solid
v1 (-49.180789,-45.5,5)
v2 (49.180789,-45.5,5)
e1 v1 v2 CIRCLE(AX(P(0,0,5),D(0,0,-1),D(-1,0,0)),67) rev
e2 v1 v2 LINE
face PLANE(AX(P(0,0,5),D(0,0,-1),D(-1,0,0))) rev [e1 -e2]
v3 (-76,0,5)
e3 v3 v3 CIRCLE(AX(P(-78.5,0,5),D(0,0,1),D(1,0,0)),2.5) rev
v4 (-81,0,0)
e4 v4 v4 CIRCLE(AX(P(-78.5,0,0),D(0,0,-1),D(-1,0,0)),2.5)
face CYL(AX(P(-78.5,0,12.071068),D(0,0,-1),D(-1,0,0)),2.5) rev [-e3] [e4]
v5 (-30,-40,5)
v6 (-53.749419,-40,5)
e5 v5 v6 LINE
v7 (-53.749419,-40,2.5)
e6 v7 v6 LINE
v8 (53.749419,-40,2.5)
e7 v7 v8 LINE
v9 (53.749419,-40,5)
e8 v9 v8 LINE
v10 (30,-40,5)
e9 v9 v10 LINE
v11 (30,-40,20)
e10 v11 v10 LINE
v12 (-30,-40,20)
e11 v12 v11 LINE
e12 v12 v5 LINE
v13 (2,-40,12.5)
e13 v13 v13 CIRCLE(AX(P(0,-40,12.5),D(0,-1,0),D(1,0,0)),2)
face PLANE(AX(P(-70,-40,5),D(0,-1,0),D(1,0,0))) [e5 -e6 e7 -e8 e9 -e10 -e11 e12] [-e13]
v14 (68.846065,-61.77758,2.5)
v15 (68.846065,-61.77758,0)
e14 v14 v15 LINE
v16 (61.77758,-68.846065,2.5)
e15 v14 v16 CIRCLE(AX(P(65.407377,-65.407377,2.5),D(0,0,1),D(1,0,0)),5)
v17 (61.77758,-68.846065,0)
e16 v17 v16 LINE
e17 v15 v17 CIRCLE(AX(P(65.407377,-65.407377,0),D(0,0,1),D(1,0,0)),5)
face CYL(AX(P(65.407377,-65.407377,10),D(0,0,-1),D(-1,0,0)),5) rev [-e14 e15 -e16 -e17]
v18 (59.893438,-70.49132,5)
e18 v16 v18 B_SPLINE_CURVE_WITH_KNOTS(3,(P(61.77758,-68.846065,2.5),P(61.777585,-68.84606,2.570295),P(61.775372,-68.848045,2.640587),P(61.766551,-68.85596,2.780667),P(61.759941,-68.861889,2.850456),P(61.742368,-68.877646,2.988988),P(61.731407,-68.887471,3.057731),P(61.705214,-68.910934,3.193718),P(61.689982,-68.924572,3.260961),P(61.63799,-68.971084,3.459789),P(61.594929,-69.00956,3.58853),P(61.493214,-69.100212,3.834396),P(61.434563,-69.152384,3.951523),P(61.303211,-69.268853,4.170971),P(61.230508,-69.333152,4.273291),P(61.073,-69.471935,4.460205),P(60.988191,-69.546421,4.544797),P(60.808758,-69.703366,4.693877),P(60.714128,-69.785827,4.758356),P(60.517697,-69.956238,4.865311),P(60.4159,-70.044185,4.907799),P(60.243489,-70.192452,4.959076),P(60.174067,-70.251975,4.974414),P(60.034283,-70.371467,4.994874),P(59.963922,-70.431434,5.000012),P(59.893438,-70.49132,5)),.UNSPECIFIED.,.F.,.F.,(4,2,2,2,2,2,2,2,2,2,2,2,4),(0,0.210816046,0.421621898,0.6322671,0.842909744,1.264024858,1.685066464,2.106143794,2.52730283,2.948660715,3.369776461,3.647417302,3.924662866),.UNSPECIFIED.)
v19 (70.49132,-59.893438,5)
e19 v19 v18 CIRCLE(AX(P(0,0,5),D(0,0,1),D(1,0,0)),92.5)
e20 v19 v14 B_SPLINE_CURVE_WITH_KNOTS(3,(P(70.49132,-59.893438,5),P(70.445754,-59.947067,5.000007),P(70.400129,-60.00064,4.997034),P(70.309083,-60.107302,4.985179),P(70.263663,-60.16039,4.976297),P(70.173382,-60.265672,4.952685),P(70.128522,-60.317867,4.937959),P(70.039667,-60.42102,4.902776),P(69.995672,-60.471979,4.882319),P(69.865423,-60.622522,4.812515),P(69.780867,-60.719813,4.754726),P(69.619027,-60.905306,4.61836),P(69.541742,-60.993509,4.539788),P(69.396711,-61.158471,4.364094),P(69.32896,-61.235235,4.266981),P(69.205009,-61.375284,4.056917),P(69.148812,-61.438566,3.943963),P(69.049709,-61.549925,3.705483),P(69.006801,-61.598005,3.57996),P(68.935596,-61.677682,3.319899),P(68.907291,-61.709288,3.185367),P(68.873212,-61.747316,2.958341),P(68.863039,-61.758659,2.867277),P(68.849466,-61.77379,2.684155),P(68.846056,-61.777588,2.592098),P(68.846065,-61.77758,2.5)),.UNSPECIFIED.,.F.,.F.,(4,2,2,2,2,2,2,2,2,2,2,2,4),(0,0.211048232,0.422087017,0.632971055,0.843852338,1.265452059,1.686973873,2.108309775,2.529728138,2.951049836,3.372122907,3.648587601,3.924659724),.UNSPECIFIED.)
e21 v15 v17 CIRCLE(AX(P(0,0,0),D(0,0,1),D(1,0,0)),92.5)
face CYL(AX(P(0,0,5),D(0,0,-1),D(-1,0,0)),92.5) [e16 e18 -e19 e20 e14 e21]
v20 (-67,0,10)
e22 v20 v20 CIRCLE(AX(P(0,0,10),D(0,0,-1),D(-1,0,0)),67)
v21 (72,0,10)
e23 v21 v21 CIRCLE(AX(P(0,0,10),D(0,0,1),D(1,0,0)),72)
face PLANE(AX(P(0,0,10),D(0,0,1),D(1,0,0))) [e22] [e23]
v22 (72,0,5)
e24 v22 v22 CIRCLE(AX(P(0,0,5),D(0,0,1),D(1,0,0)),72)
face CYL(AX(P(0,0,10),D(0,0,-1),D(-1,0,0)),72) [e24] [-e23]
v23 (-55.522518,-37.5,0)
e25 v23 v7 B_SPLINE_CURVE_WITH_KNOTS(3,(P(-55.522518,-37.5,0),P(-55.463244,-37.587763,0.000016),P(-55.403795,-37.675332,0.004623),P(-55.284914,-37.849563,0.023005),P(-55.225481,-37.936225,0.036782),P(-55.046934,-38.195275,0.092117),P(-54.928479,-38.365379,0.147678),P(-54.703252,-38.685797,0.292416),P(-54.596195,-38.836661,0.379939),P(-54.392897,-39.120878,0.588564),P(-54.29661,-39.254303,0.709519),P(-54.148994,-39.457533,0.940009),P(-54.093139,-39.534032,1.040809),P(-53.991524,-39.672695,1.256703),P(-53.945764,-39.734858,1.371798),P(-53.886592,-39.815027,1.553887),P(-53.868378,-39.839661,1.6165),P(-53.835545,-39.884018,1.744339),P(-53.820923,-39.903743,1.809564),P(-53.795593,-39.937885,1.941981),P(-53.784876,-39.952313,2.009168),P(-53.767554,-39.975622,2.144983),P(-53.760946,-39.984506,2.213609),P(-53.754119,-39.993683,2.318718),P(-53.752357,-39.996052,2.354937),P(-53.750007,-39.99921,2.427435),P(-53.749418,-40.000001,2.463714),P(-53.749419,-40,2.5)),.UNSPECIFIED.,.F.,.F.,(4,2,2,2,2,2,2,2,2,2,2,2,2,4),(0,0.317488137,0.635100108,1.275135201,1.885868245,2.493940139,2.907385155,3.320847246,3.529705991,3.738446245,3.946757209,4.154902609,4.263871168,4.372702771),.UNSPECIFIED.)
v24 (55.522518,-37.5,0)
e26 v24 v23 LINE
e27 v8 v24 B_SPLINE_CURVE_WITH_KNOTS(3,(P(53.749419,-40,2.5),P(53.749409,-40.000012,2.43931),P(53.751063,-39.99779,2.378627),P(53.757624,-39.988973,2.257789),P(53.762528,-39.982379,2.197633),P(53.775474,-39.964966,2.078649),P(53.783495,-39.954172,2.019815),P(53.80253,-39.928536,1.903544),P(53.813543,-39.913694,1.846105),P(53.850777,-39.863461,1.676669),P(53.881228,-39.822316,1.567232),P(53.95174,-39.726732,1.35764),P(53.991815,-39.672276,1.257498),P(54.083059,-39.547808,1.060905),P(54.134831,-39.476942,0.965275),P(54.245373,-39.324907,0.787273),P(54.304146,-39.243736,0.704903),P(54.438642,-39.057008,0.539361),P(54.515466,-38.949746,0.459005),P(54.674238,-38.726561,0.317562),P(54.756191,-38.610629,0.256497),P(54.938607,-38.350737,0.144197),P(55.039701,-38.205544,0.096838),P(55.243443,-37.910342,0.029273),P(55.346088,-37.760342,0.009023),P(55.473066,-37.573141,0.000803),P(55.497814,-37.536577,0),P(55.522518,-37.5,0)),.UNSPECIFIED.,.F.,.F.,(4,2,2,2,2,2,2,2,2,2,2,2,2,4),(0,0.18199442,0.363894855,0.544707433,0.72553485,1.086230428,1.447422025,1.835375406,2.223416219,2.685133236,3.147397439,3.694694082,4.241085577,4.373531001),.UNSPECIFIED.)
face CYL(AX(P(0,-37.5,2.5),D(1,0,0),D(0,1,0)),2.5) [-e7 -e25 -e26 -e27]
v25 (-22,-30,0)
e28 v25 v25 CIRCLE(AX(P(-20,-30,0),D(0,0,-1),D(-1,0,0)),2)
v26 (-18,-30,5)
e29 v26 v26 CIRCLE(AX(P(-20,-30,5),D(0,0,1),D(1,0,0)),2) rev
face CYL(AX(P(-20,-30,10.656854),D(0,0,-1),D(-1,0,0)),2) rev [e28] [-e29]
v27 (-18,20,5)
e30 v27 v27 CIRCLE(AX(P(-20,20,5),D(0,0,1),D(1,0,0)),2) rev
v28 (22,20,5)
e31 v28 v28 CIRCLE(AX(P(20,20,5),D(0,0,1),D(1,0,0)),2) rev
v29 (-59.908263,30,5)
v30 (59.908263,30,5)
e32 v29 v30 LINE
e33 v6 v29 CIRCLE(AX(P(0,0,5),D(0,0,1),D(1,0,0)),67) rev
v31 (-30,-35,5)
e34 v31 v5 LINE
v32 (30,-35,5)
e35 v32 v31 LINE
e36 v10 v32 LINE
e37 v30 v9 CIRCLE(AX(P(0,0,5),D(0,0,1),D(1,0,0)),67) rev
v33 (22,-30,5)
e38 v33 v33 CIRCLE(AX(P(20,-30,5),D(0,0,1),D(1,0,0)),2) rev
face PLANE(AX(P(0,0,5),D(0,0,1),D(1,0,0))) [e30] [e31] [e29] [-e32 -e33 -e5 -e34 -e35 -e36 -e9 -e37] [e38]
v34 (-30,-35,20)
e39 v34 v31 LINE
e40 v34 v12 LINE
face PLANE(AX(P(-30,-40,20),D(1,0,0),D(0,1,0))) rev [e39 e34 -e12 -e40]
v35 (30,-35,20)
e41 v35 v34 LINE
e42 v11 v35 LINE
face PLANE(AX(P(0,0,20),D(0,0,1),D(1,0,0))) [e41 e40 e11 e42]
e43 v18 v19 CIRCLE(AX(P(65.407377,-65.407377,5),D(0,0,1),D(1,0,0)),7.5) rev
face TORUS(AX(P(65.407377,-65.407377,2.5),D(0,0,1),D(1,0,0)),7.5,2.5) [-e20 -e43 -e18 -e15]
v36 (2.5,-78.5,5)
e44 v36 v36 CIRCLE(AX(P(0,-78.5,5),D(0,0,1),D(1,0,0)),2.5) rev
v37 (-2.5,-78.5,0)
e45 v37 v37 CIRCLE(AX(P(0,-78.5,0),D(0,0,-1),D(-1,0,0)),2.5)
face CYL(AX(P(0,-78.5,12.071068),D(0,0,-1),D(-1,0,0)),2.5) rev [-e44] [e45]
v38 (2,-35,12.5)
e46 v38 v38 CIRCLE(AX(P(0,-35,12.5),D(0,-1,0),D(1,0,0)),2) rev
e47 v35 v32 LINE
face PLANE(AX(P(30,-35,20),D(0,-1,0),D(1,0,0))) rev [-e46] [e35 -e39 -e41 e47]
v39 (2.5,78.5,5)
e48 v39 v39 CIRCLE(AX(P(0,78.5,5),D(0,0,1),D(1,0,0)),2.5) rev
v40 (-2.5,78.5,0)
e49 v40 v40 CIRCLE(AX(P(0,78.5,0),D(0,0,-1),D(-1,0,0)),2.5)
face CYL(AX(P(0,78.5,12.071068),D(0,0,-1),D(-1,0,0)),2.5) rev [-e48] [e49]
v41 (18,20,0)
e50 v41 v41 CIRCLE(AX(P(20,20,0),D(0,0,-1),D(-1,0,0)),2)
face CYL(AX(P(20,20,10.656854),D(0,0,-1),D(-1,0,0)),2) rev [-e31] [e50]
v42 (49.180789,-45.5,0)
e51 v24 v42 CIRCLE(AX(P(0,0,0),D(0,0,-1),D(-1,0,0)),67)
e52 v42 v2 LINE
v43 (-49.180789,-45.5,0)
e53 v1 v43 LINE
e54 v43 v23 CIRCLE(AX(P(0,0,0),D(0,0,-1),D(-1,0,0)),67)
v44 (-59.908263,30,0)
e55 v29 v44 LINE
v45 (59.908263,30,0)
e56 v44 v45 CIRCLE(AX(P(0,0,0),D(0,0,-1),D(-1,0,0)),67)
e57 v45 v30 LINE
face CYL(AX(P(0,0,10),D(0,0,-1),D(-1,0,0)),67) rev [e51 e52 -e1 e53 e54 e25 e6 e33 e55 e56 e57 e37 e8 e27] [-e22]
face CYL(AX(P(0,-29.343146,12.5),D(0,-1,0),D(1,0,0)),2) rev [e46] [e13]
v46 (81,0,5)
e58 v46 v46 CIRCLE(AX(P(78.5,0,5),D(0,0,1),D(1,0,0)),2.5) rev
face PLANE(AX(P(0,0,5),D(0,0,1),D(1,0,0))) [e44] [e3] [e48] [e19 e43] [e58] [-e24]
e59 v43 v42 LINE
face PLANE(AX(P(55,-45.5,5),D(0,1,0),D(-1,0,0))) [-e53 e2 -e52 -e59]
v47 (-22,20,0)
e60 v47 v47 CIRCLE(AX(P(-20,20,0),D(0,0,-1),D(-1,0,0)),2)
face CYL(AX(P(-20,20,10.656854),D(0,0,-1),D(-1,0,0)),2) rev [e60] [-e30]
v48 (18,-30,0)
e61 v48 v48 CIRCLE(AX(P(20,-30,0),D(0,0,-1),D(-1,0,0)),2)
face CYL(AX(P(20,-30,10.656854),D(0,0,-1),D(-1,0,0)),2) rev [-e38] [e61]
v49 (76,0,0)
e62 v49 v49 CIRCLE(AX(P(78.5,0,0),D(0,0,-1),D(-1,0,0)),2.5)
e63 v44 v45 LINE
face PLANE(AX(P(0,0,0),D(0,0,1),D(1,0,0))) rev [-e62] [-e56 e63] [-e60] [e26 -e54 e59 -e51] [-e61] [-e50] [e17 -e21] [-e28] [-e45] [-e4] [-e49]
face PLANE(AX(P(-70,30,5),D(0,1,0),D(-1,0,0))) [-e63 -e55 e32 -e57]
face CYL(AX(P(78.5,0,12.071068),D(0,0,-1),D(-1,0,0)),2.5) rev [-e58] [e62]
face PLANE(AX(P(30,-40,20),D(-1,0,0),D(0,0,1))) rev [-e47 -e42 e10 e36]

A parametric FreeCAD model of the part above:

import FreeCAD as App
import Part
import Sketcher
Q = App.Units.Quantity


def edges_at(feature, points):
    """Names of the edges that pass closest to the given points."""
    edges = feature.Shape.Edges
    near = lambda p: min(range(len(edges)), key=lambda i: edges[i].distToShape(Part.Vertex(*p))[0])
    return sorted({f"Edge{near(p) + 1}" for p in points})

doc = App.newDocument("Part")
body = doc.addObject("PartDesign::Body", "Body")

# Sketch on XY plane
sketch1 = body.newObject("Sketcher::SketchObject", "Sketch")
sketch1.AttachmentSupport = (doc.getObject("XY_Plane"), [""])
sketch1.MapMode = "FlatFace"
sketch1.addGeometry(Part.Circle(App.Vector(0, 0, 0), App.Vector(0, 0, 1), 92), False)
sketch1.addConstraint(Sketcher.Constraint("Coincident", 0, 3, -1, 1))
sketch1.addConstraint(Sketcher.Constraint("Diameter", 0, Q("185 mm")))
pad1 = body.newObject("PartDesign::Pad", "Pad")
pad1.Profile = sketch1
pad1.Length = 5

# Sketch on XY plane
sketch2 = body.newObject("Sketcher::SketchObject", "Sketch001")
sketch2.AttachmentSupport = (doc.getObject("XY_Plane"), [""])
sketch2.MapMode = "FlatFace"
sketch2.AttachmentOffset = App.Placement(App.Vector(0, 0, 5), App.Rotation())
sketch2.addGeometry(Part.Circle(App.Vector(0, 0, 0), App.Vector(0, 0, 1), 72), False)
sketch2.addConstraint(Sketcher.Constraint("Coincident", 0, 3, -1, 1))
sketch2.addConstraint(Sketcher.Constraint("Diameter", 0, Q("144 mm")))
pad2 = body.newObject("PartDesign::Pad", "Pad001")
pad2.Profile = sketch2
pad2.Length = 5

# Sketch on XY plane
sketch3 = body.newObject("Sketcher::SketchObject", "Sketch002")
sketch3.AttachmentSupport = (doc.getObject("XY_Plane"), [""])
sketch3.MapMode = "FlatFace"
sketch3.addGeometry(Part.Circle(App.Vector(0, 0, 0), App.Vector(0, 0, 1), 67), False)
sketch3.addConstraint(Sketcher.Constraint("Coincident", 0, 3, -1, 1))
sketch3.addConstraint(Sketcher.Constraint("Diameter", 0, Q("134 mm")))
pocket1 = body.newObject("PartDesign::Pocket", "Pocket")
pocket1.Profile = sketch3
pocket1.Type = "ThroughAll"
pocket1.Reversed = True

# Sketch on XY plane
sketch4 = body.newObject("Sketcher::SketchObject", "Sketch003")
sketch4.AttachmentSupport = (doc.getObject("XY_Plane"), [""])
sketch4.MapMode = "FlatFace"
sketch4.addGeometry(Part.LineSegment(App.Vector(70, 30, 0), App.Vector(70, -40, 0)), False)
sketch4.addGeometry(Part.LineSegment(App.Vector(70, -40, 0), App.Vector(-70, -40, 0)), False)
sketch4.addGeometry(Part.LineSegment(App.Vector(-70, -40, 0), App.Vector(-70, 30, 0)), False)
sketch4.addGeometry(Part.LineSegment(App.Vector(-70, 30, 0), App.Vector(70, 30, 0)), False)
sketch4.addConstraint(Sketcher.Constraint("Coincident", 0, 2, 1, 1))
sketch4.addConstraint(Sketcher.Constraint("Coincident", 1, 2, 2, 1))
sketch4.addConstraint(Sketcher.Constraint("Coincident", 2, 2, 3, 1))
sketch4.addConstraint(Sketcher.Constraint("Coincident", 3, 2, 0, 1))
sketch4.addConstraint(Sketcher.Constraint("Vertical", 0))
sketch4.addConstraint(Sketcher.Constraint("Horizontal", 1))
sketch4.addConstraint(Sketcher.Constraint("Vertical", 2))
sketch4.addConstraint(Sketcher.Constraint("Horizontal", 3))
sketch4.addConstraint(Sketcher.Constraint("DistanceX", 1, 2, 1, 1, Q("140 mm")))
sketch4.addConstraint(Sketcher.Constraint("DistanceY", 0, 2, 0, 1, Q("70 mm")))
sketch4.addConstraint(Sketcher.Constraint("DistanceX", -1, 1, 0, 2, Q("70 mm")))
sketch4.addConstraint(Sketcher.Constraint("DistanceY", 0, 2, -1, 1, Q("40 mm")))
pad3 = body.newObject("PartDesign::Pad", "Pad002")
pad3.Profile = sketch4
pad3.Length = 5
doc.recompute()

fillet = body.newObject("PartDesign::Fillet", "Fillet")
fillet.Base = (pad3, edges_at(pad3, [(0, -40, 0)]))
fillet.Radius = 2.5

# Sketch on XY plane
sketch5 = body.newObject("Sketcher::SketchObject", "Sketch004")
sketch5.AttachmentSupport = (doc.getObject("XY_Plane"), [""])
sketch5.MapMode = "FlatFace"
sketch5.addGeometry(Part.LineSegment(App.Vector(55, -46, 0), App.Vector(55, -70, 0)), False)
sketch5.addGeometry(Part.LineSegment(App.Vector(55, -70, 0), App.Vector(-55, -70, 0)), False)
sketch5.addGeometry(Part.LineSegment(App.Vector(-55, -70, 0), App.Vector(-55, -46, 0)), False)
sketch5.addGeometry(Part.LineSegment(App.Vector(-55, -46, 0), App.Vector(55, -46, 0)), False)
sketch5.addConstraint(Sketcher.Constraint("Coincident", 0, 2, 1, 1))
sketch5.addConstraint(Sketcher.Constraint("Coincident", 1, 2, 2, 1))
sketch5.addConstraint(Sketcher.Constraint("Coincident", 2, 2, 3, 1))
sketch5.addConstraint(Sketcher.Constraint("Coincident", 3, 2, 0, 1))
sketch5.addConstraint(Sketcher.Constraint("Vertical", 0))
sketch5.addConstraint(Sketcher.Constraint("Horizontal", 1))
sketch5.addConstraint(Sketcher.Constraint("Vertical", 2))
sketch5.addConstraint(Sketcher.Constraint("Horizontal", 3))
sketch5.addConstraint(Sketcher.Constraint("DistanceX", 1, 2, 1, 1, Q("110 mm")))
sketch5.addConstraint(Sketcher.Constraint("DistanceY", 0, 2, 0, 1, Q("25 mm")))
sketch5.addConstraint(Sketcher.Constraint("DistanceX", -1, 1, 0, 2, Q("55 mm")))
sketch5.addConstraint(Sketcher.Constraint("DistanceY", 0, 2, -1, 1, Q("70.5 mm")))
pad4 = body.newObject("PartDesign::Pad", "Pad003")
pad4.Profile = sketch5
pad4.Length = 5

# Sketch on XY plane
sketch6 = body.newObject("Sketcher::SketchObject", "Sketch005")
sketch6.AttachmentSupport = (doc.getObject("XY_Plane"), [""])
sketch6.MapMode = "FlatFace"
sketch6.addGeometry(Part.Circle(App.Vector(20, -30, 0), App.Vector(0, 0, 1), 2), False)
sketch6.addGeometry(Part.Circle(App.Vector(20, 20, 0), App.Vector(0, 0, 1), 2), False)
sketch6.addGeometry(Part.Circle(App.Vector(-20, 20, 0), App.Vector(0, 0, 1), 2), False)
sketch6.addGeometry(Part.Circle(App.Vector(-20, -30, 0), App.Vector(0, 0, 1), 2), False)
sketch6.addConstraint(Sketcher.Constraint("Equal", 0, 1))
sketch6.addConstraint(Sketcher.Constraint("Equal", 1, 2))
sketch6.addConstraint(Sketcher.Constraint("Equal", 2, 3))
sketch6.addConstraint(Sketcher.Constraint("Symmetric", 1, 3, 2, 3, -2))
sketch6.addConstraint(Sketcher.Constraint("Symmetric", 0, 3, 3, 3, -2))
sketch6.addConstraint(Sketcher.Constraint("Vertical", 0, 3, 1, 3))
sketch6.addConstraint(Sketcher.Constraint("Diameter", 0, Q("4 mm")))
sketch6.addConstraint(Sketcher.Constraint("DistanceX", -1, 1, 0, 3, Q("20 mm")))
sketch6.addConstraint(Sketcher.Constraint("DistanceY", 0, 3, -1, 1, Q("30 mm")))
sketch6.addConstraint(Sketcher.Constraint("DistanceY", -1, 1, 1, 3, Q("20 mm")))
pocket2 = body.newObject("PartDesign::Pocket", "Pocket001")
pocket2.Profile = sketch6
pocket2.Length = 5
pocket2.Reversed = True

# Sketch on XY plane
sketch7 = body.newObject("Sketcher::SketchObject", "Sketch006")
sketch7.AttachmentSupport = (doc.getObject("XY_Plane"), [""])
sketch7.MapMode = "FlatFace"
sketch7.addGeometry(Part.Circle(App.Vector(0, -78.5, 0), App.Vector(0, 0, 1), 2.5), False)
sketch7.addGeometry(Part.Circle(App.Vector(78.5, 0, 0), App.Vector(0, 0, 1), 2.5), False)
sketch7.addGeometry(Part.Circle(App.Vector(0, 78.5, 0), App.Vector(0, 0, 1), 2.5), False)
sketch7.addGeometry(Part.Circle(App.Vector(-78.5, 0, 0), App.Vector(0, 0, 1), 2.5), False)
sketch7.addConstraint(Sketcher.Constraint("Equal", 0, 1))
sketch7.addConstraint(Sketcher.Constraint("Equal", 1, 2))
sketch7.addConstraint(Sketcher.Constraint("Equal", 2, 3))
sketch7.addConstraint(Sketcher.Constraint("Symmetric", 0, 3, 2, 3, -1, 1))
sketch7.addConstraint(Sketcher.Constraint("Symmetric", 1, 3, 3, 3, -1, 1))
sketch7.addConstraint(Sketcher.Constraint("PointOnObject", 0, 3, -2))
sketch7.addConstraint(Sketcher.Constraint("PointOnObject", 1, 3, -1))
sketch7.addConstraint(Sketcher.Constraint("Diameter", 0, Q("5 mm")))
sketch7.addConstraint(Sketcher.Constraint("DistanceY", 0, 3, 2, 3, Q("157 mm")))
sketch7.addConstraint(Sketcher.Constraint("DistanceX", 3, 3, 1, 3, Q("157 mm")))
pocket3 = body.newObject("PartDesign::Pocket", "Pocket002")
pocket3.Profile = sketch7
pocket3.Length = 5
pocket3.Reversed = True

# Sketch on XY plane
sketch8 = body.newObject("Sketcher::SketchObject", "Sketch007")
sketch8.AttachmentSupport = (doc.getObject("XY_Plane"), [""])
sketch8.MapMode = "FlatFace"
sketch8.AttachmentOffset = App.Placement(App.Vector(0, 0, 5), App.Rotation())
sketch8.addGeometry(Part.LineSegment(App.Vector(-30, -35, 0), App.Vector(-30, -40, 0)), False)
sketch8.addGeometry(Part.LineSegment(App.Vector(-30, -40, 0), App.Vector(30, -40, 0)), False)
sketch8.addGeometry(Part.LineSegment(App.Vector(30, -40, 0), App.Vector(30, -35, 0)), False)
sketch8.addGeometry(Part.LineSegment(App.Vector(30, -35, 0), App.Vector(-30, -35, 0)), False)
sketch8.addConstraint(Sketcher.Constraint("Coincident", 0, 2, 1, 1))
sketch8.addConstraint(Sketcher.Constraint("Coincident", 1, 2, 2, 1))
sketch8.addConstraint(Sketcher.Constraint("Coincident", 2, 2, 3, 1))
sketch8.addConstraint(Sketcher.Constraint("Coincident", 3, 2, 0, 1))
sketch8.addConstraint(Sketcher.Constraint("Vertical", 0))
sketch8.addConstraint(Sketcher.Constraint("Horizontal", 1))
sketch8.addConstraint(Sketcher.Constraint("Vertical", 2))
sketch8.addConstraint(Sketcher.Constraint("Horizontal", 3))
sketch8.addConstraint(Sketcher.Constraint("DistanceX", 1, 1, 1, 2, Q("60 mm")))
sketch8.addConstraint(Sketcher.Constraint("DistanceY", 0, 2, 0, 1, Q("5 mm")))
sketch8.addConstraint(Sketcher.Constraint("DistanceX", 0, 2, -1, 1, Q("30 mm")))
sketch8.addConstraint(Sketcher.Constraint("DistanceY", 0, 2, -1, 1, Q("40 mm")))
pad5 = body.newObject("PartDesign::Pad", "Pad004")
pad5.Profile = sketch8
pad5.Length = 15

# Sketch on XZ plane
sketch9 = body.newObject("Sketcher::SketchObject", "Sketch008")
sketch9.AttachmentSupport = (doc.getObject("XZ_Plane"), [""])
sketch9.MapMode = "FlatFace"
sketch9.AttachmentOffset = App.Placement(App.Vector(0, 0, 40), App.Rotation())
sketch9.addGeometry(Part.Circle(App.Vector(0, 12.5, 0), App.Vector(0, 0, 1), 2), False)
sketch9.addConstraint(Sketcher.Constraint("PointOnObject", 0, 3, -2))
sketch9.addConstraint(Sketcher.Constraint("Diameter", 0, Q("4 mm")))
sketch9.addConstraint(Sketcher.Constraint("DistanceY", -1, 1, 0, 3, Q("12.5 mm")))
pocket4 = body.newObject("PartDesign::Pocket", "Pocket003")
pocket4.Profile = sketch9
pocket4.Length = 5

# Sketch on XY plane
sketch10 = body.newObject("Sketcher::SketchObject", "Sketch009")
sketch10.AttachmentSupport = (doc.getObject("XY_Plane"), [""])
sketch10.MapMode = "FlatFace"
sketch10.addGeometry(Part.Circle(App.Vector(65, -65, 0), App.Vector(0, 0, 1), 5), False)
sketch10.addConstraint(Sketcher.Constraint("Diameter", 0, Q("10 mm")))
sketch10.addConstraint(Sketcher.Constraint("DistanceX", -1, 1, 0, 3, Q("65.407377 mm")))
sketch10.addConstraint(Sketcher.Constraint("DistanceY", 0, 3, -1, 1, Q("65.407377 mm")))
pocket5 = body.newObject("PartDesign::Pocket", "Pocket004")
pocket5.Profile = sketch10
pocket5.Length = 10
pocket5.Reversed = True
doc.recompute()

fillet2 = body.newObject("PartDesign::Fillet", "Fillet001")
fillet2.Base = (pocket5, edges_at(pocket5, [(61.872, -61.872, 5)]))
fillet2.Radius = 2.5

doc.recompute()
